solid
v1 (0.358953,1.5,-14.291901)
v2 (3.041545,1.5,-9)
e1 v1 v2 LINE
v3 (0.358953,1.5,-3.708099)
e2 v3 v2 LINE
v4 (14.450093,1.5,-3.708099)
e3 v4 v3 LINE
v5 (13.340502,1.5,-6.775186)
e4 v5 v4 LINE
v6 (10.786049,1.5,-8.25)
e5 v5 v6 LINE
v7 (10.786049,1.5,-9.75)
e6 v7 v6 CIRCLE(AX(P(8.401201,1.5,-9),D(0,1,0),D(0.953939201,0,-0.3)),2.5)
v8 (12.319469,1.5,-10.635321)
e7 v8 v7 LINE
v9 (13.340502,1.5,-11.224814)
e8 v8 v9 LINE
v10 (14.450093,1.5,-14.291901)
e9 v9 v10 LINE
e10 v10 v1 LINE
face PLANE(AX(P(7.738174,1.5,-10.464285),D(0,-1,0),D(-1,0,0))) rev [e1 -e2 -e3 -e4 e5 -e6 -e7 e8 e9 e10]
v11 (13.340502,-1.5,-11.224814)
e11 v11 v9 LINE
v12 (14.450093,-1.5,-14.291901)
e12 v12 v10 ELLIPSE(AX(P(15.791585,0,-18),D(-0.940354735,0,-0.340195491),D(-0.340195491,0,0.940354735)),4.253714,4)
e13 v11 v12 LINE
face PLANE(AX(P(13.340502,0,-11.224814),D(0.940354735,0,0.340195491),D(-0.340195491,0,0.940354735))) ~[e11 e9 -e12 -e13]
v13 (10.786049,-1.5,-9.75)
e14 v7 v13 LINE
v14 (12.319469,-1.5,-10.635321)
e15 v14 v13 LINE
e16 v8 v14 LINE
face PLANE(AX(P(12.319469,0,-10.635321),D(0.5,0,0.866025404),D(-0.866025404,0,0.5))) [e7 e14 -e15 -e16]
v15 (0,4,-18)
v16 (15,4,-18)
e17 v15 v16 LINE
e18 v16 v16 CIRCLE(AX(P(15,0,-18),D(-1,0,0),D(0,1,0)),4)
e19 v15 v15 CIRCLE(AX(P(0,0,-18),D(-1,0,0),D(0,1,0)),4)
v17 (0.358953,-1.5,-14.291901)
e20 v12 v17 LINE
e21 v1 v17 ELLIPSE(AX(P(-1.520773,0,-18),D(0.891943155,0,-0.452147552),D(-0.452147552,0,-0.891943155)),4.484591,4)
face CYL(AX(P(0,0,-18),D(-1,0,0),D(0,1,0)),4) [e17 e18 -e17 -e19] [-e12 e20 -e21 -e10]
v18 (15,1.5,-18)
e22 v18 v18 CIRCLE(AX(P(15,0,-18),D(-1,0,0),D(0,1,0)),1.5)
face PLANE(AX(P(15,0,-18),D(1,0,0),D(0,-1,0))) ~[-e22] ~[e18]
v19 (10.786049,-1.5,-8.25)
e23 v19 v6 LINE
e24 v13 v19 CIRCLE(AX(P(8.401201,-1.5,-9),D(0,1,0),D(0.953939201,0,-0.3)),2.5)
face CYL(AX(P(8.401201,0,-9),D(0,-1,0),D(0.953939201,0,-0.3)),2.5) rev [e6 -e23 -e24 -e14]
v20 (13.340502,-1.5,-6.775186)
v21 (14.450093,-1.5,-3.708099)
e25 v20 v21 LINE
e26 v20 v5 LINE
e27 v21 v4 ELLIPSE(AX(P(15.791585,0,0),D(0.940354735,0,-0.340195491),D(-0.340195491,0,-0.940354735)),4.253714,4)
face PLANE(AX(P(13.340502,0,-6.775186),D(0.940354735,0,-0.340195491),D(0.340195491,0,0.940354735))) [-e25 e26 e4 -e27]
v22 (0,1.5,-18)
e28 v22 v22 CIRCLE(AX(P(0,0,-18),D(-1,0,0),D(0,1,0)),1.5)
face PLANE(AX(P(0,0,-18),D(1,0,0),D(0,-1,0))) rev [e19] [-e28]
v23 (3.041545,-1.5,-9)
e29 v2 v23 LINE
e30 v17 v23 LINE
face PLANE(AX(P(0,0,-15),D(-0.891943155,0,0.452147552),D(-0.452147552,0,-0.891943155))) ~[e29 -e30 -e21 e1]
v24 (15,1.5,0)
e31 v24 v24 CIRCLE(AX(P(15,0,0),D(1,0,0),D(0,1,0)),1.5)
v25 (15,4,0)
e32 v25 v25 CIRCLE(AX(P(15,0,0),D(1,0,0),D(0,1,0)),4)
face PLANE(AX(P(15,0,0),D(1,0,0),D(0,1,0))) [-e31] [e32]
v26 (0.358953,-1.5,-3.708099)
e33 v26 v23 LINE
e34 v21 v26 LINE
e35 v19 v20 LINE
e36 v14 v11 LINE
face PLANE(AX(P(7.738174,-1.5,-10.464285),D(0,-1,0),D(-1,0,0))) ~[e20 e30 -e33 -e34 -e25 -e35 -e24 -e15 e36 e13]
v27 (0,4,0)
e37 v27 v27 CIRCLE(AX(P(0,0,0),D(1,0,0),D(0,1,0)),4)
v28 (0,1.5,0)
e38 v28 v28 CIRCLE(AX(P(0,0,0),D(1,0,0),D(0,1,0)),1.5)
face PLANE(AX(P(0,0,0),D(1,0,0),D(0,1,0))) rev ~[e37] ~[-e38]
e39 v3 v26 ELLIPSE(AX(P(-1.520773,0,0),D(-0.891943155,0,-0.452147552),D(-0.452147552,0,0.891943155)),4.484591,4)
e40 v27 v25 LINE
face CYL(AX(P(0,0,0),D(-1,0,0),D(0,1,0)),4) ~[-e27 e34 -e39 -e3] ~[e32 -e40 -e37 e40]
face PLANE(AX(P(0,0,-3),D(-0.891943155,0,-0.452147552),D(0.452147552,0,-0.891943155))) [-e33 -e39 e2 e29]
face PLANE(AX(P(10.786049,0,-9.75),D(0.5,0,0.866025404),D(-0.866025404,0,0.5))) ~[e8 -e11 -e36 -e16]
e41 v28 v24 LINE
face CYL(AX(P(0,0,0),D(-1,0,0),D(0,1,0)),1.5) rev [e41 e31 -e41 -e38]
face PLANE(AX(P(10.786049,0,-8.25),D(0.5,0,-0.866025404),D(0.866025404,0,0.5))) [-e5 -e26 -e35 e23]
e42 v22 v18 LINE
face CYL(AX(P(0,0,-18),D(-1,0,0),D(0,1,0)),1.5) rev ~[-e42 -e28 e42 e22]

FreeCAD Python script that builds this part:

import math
import FreeCAD as App
import Part
import Sketcher

V = App.Vector
Q = App.Units.Quantity

doc = App.newDocument("Part")
params = doc.addObject("Spreadsheet::Sheet", "Params")
for row, (alias, value) in enumerate([
    ("sketch1_diameter", "8 mm"),
    ("sketch1_diameter2", "3 mm"),
    ("pad1_length", "15 mm"),
    ("sketch2_radius", "2.5 mm"),
    ("pad2_length", "3 mm"),
], start=1):
    params.set(f"A{row}", alias)
    params.set(f"B{row}", "=" + value)
    params.setAlias(f"B{row}", alias)

body = doc.addObject("PartDesign::Body", "Body")

sketch1 = body.newObject("Sketcher::SketchObject", "Sketch")
sketch1.AttachmentSupport = (doc.getObject("YZ_Plane"), [""])
sketch1.MapMode = "FlatFace"
sketch1.addGeometry([
    Part.Circle(V(0, 0, 0), V(0, 0, 1), 4),
    Part.Circle(V(0, 0, 0), V(0, 0, 1), 1.5),
], False)
sketch1.addConstraint([
    Sketcher.Constraint("Coincident", 0, 3, -1, 1),
    Sketcher.Constraint("Coincident", 1, 3, -1, 1),
    Sketcher.Constraint("Diameter", 0, Q("8 mm")),
    Sketcher.Constraint("Diameter", 1, Q("3 mm")),
])
sketch1.setExpression("Constraints[2]", "Params.sketch1_diameter")
sketch1.setExpression("Constraints[3]", "Params.sketch1_diameter2")
pad1 = body.newObject("PartDesign::Pad", "Pad")
pad1.Profile = sketch1
pad1.setExpression("Length", "Params.pad1_length")

sketch2 = body.newObject("Sketcher::SketchObject", "Sketch001")
sketch2.AttachmentSupport = (doc.getObject("XZ_Plane"), [""])
sketch2.MapMode = "FlatFace"
sketch2.addGeometry([
    Part.LineSegment(V(14.7, -3, 0), V(0, -3, 0)),
    Part.LineSegment(V(0, -3, 0), V(4.5, -12, 0)),
    Part.ArcOfCircle(Part.Circle(V(8.2, -10.1, 0), V(0, 0, 1), 4.1), math.radians(-153), math.radians(-7)),
    Part.LineSegment(V(12.3, -10.6, 0), V(10.8, -9.8, 0)),
    Part.ArcOfCircle(Part.Circle(V(8.4, -9, 0), V(0, 0, 1), 2.5), math.radians(17), math.radians(343)),
    Part.LineSegment(V(10.8, -8.2, 0), V(13.3, -6.8, 0)),
    Part.LineSegment(V(13.3, -6.8, 0), V(14.7, -3, 0)),
], False)
sketch2.addConstraint([
    Sketcher.Constraint("Coincident", 0, 2, 1, 1),
    Sketcher.Constraint("Tangent", 1, 2, 2, 1),
    Sketcher.Constraint("Coincident", 2, 2, 3, 1),
    Sketcher.Constraint("Coincident", 3, 2, 4, 2),
    Sketcher.Constraint("Coincident", 4, 1, 5, 1),
    Sketcher.Constraint("Coincident", 5, 2, 6, 1),
    Sketcher.Constraint("Coincident", 6, 2, 0, 1),
    Sketcher.Constraint("Horizontal", 0),
    Sketcher.Constraint("PointOnObject", 0, 2, -2),
    Sketcher.Constraint("Vertical", 3, 2, 4, 1),
    Sketcher.Constraint("Radius", 4, Q("2.5 mm")),
    Sketcher.Constraint("Angle", 3, Q("150 deg")),
    Sketcher.Constraint("Angle", 5, Q("30 deg")),
    Sketcher.Constraint("DistanceY", 4, 3, -1, 1, Q("9 mm")),
    Sketcher.Constraint("DistanceY", 0, 2, -1, 1, Q("3 mm")),
    Sketcher.Constraint("DistanceY", 3, 2, 4, 1, Q("1.5 mm")),
    Sketcher.Constraint("Radius", 2, Q("4.126005 mm")),
    Sketcher.Constraint("DistanceX", -1, 1, 4, 3, Q("8.401201 mm")),
    Sketcher.Constraint("DistanceX", -1, 1, 1, 2, Q("4.547499 mm")),
    Sketcher.Constraint("DistanceX", -1, 1, 5, 2, Q("13.340502 mm")),
    Sketcher.Constraint("Distance", 3, Q("1.770641 mm")),
    Sketcher.Constraint("Distance", 6, Q("4.01464 mm")),
])
sketch2.setExpression("Constraints[10]", "Params.sketch2_radius")
pad2 = body.newObject("PartDesign::Pad", "Pad001")
pad2.Profile = sketch2
pad2.setExpression("Length", "Params.pad2_length")
pad2.Midplane = True
body2 = doc.addObject("PartDesign::Body", "Body001")
doc.recompute()

body2.BaseFeature = body
doc.recompute()

mirroring = doc.addObject("Part::Mirroring", "Mirroring")
mirroring.Source = body
mirroring.Base = V(0, 0, -9)
mirroring.Normal = V(0, 0, 1)
body3 = doc.addObject("PartDesign::Body", "Body002")
body3.BaseFeature = mirroring
boolean = body2.newObject("PartDesign::Boolean", "Boolean")
boolean.Type = "Fuse"
boolean.addObjects([body3])
doc.recompute()
mirroring.Visibility = False

doc.recompute()
